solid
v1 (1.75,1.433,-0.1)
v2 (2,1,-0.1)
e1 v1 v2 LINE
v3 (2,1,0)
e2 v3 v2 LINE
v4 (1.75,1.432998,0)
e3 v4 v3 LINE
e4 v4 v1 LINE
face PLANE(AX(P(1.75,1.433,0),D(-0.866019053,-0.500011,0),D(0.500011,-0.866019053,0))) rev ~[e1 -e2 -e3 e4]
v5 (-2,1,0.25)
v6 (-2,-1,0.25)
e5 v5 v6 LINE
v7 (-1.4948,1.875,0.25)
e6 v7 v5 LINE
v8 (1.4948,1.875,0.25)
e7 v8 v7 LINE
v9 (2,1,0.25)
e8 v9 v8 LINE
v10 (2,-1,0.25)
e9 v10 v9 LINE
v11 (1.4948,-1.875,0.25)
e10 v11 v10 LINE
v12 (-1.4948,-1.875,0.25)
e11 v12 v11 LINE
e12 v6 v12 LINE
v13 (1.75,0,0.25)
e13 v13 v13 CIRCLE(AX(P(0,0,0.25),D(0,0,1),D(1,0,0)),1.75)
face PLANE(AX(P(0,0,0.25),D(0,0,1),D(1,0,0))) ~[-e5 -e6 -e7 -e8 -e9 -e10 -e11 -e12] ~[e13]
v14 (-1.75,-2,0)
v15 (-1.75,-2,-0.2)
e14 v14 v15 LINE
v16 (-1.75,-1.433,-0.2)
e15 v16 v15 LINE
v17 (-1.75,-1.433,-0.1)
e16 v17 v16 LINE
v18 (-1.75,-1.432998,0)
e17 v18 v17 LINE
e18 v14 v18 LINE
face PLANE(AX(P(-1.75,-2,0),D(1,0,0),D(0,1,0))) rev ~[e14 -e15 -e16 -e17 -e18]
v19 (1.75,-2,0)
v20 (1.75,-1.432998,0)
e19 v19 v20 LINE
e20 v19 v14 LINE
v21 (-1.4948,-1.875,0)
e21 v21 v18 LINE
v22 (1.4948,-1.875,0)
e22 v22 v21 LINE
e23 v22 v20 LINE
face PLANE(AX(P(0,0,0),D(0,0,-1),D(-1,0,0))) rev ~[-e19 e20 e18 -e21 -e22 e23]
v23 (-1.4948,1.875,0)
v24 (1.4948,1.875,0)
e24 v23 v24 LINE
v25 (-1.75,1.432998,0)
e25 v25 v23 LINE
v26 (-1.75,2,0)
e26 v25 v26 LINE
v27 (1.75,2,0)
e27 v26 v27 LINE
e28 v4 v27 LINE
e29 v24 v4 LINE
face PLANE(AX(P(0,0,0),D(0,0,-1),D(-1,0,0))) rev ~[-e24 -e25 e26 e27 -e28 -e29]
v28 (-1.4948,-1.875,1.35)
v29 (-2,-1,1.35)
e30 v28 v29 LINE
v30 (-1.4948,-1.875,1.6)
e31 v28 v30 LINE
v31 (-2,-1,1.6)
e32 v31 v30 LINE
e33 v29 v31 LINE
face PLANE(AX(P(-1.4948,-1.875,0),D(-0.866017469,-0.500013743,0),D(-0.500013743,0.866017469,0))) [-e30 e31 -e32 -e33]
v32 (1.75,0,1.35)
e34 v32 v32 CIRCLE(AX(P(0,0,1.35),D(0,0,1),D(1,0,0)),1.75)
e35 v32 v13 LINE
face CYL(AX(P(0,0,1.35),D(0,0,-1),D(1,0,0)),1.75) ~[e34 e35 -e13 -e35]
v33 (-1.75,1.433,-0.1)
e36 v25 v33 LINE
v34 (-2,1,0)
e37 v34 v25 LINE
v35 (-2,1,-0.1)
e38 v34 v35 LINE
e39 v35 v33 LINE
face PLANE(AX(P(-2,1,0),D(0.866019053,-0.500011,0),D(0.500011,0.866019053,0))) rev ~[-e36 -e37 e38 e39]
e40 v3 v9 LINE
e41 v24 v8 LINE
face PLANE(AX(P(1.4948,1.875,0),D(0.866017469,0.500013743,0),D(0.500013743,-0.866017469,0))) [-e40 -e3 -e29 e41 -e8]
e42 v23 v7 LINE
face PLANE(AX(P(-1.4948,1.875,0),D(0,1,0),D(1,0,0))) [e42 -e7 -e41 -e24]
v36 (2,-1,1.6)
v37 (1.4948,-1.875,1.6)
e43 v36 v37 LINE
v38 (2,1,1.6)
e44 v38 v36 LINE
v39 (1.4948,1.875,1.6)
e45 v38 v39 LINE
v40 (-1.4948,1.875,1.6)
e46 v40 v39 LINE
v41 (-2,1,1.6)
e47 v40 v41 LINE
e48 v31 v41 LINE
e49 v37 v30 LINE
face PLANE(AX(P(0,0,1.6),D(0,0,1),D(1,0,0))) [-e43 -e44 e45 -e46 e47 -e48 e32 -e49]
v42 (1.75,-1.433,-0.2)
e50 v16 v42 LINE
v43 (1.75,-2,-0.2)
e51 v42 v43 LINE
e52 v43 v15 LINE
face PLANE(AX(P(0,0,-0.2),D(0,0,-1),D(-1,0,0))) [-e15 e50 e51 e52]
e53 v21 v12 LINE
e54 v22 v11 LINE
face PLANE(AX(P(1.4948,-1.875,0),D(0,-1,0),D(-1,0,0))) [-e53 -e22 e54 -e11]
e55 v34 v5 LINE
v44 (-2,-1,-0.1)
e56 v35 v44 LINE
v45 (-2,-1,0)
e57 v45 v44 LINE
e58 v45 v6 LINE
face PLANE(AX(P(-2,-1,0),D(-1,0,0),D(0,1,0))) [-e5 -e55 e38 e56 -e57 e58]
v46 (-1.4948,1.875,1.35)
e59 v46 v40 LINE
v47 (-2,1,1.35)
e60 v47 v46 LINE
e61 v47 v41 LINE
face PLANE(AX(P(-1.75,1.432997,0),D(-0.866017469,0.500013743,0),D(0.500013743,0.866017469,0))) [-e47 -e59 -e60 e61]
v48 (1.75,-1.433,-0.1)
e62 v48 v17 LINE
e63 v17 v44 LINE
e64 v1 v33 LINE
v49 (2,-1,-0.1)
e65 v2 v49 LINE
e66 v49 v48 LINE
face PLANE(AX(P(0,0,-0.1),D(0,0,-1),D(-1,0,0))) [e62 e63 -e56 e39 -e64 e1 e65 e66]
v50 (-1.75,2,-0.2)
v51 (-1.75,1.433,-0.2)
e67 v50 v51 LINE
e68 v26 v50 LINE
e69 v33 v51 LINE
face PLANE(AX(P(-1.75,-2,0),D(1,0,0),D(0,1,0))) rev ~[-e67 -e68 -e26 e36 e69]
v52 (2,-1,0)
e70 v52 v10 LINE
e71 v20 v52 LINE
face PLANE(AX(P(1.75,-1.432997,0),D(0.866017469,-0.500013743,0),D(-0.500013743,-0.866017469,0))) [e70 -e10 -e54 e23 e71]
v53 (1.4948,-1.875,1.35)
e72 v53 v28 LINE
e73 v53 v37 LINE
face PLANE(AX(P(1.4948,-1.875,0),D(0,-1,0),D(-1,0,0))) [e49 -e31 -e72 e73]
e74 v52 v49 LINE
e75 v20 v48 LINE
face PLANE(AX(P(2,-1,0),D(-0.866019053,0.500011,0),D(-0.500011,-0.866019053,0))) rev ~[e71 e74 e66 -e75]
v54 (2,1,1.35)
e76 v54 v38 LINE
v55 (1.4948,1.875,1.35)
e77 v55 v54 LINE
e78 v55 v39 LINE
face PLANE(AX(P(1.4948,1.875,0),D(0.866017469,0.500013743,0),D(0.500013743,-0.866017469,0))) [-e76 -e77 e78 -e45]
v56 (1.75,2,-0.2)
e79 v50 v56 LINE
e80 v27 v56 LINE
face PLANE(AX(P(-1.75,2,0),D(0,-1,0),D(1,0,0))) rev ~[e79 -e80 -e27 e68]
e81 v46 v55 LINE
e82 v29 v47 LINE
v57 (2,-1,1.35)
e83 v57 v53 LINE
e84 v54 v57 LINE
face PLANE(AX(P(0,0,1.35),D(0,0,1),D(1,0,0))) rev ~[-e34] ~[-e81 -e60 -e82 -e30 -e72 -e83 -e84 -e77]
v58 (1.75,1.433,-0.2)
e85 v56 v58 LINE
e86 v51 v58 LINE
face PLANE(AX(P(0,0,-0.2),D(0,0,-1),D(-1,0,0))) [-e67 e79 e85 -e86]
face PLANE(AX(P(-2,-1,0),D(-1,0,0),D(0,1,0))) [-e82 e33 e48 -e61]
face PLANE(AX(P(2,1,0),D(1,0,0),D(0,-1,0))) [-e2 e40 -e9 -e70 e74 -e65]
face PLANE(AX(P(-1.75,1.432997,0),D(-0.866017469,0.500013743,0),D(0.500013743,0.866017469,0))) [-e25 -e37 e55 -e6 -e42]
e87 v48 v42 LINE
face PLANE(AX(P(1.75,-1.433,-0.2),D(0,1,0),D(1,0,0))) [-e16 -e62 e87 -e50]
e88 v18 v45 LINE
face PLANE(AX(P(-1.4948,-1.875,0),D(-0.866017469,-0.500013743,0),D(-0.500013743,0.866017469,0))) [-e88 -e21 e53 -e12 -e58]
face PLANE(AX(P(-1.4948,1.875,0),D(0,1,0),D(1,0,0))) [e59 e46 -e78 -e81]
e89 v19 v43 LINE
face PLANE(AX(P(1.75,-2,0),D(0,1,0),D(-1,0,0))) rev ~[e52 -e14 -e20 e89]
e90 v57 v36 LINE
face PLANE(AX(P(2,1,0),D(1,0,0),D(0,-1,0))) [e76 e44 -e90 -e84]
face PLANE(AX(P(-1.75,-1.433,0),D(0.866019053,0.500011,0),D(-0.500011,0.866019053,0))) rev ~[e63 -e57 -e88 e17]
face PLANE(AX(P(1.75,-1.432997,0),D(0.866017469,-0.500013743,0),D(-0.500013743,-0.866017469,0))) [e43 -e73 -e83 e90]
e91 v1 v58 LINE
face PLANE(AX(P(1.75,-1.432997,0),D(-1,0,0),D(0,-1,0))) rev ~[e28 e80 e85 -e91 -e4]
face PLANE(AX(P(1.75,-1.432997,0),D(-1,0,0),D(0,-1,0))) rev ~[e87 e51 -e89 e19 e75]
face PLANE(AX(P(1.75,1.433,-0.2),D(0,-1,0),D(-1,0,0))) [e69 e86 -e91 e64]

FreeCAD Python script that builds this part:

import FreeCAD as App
import Part
import Sketcher

V = App.Vector
Q = App.Units.Quantity

doc = App.newDocument("Part")
body = doc.addObject("PartDesign::Body", "Body")

sketch1 = doc.addObject("Sketcher::SketchObject", "Sketch")
body.addObject(sketch1)
sketch1.AttachmentSupport = (doc.XY_Plane, [""])
sketch1.MapMode = "FlatFace"
sketch1.addGeometry(Part.LineSegment(V(1.4948, -1.875, 0), V(2, -1, 0)), False)
sketch1.addGeometry(Part.LineSegment(V(2, -1, 0), V(2, 1, 0)), False)
sketch1.addGeometry(Part.LineSegment(V(2, 1, 0), V(1.4948, 1.875, 0)), False)
sketch1.addGeometry(Part.LineSegment(V(1.4948, 1.875, 0), V(-1.4948, 1.875, 0)), False)
sketch1.addGeometry(Part.LineSegment(V(-1.4948, 1.875, 0), V(-2, 1, 0)), False)
sketch1.addGeometry(Part.LineSegment(V(-2, 1, 0), V(-2, -1, 0)), False)
sketch1.addGeometry(Part.LineSegment(V(-2, -1, 0), V(-1.4948, -1.875, 0)), False)
sketch1.addGeometry(Part.LineSegment(V(-1.4948, -1.875, 0), V(1.4948, -1.875, 0)), False)
sketch1.addConstraint(Sketcher.Constraint("Coincident", 0, 2, 1, 1))
sketch1.addConstraint(Sketcher.Constraint("Coincident", 1, 2, 2, 1))
sketch1.addConstraint(Sketcher.Constraint("Coincident", 2, 2, 3, 1))
sketch1.addConstraint(Sketcher.Constraint("Coincident", 3, 2, 4, 1))
sketch1.addConstraint(Sketcher.Constraint("Coincident", 4, 2, 5, 1))
sketch1.addConstraint(Sketcher.Constraint("Coincident", 5, 2, 6, 1))
sketch1.addConstraint(Sketcher.Constraint("Coincident", 6, 2, 7, 1))
sketch1.addConstraint(Sketcher.Constraint("Coincident", 7, 2, 0, 1))
sketch1.addConstraint(Sketcher.Constraint("Vertical", 1))
sketch1.addConstraint(Sketcher.Constraint("Horizontal", 3))
sketch1.addConstraint(Sketcher.Constraint("Vertical", 5))
sketch1.addConstraint(Sketcher.Constraint("Horizontal", 7))
sketch1.addConstraint(Sketcher.Constraint("Symmetric", 0, 2, 4, 2, -1, 1))
sketch1.addConstraint(Sketcher.Constraint("Symmetric", 2, 2, 6, 2, -1, 1))
sketch1.addConstraint(Sketcher.Constraint("Parallel", 0, 4))
sketch1.addConstraint(Sketcher.Constraint("Parallel", 2, 6))
sketch1.addConstraint(Sketcher.Constraint("Horizontal", 1, 2, 4, 2))
sketch1.addConstraint(Sketcher.Constraint("Vertical", 3, 2, 6, 2))
sketch1.addConstraint(Sketcher.Constraint("DistanceY", 1, 1, 1, 2, 2.0))
sketch1.addConstraint(Sketcher.Constraint("DistanceX", -1, 1, 0, 2, 2.0))
sketch1.addConstraint(Sketcher.Constraint("Angle", 0, Q("59.999 deg")))
sketch1.addConstraint(Sketcher.Constraint("DistanceY", 6, 2, 3, 2, 3.75))
pad1 = doc.addObject("PartDesign::Pad", "Pad")
body.addObject(pad1)
pad1.Profile = sketch1
pad1.Length = 1.6

sketch2 = doc.addObject("Sketcher::SketchObject", "Sketch001")
body.addObject(sketch2)
sketch2.AttachmentSupport = (doc.XY_Plane, [""])
sketch2.MapMode = "FlatFace"
sketch2.addGeometry(Part.LineSegment(V(-1.75, -2, 0), V(-1.75, 2, 0)), False)
sketch2.addGeometry(Part.LineSegment(V(-1.75, 2, 0), V(1.75, 2, 0)), False)
sketch2.addGeometry(Part.LineSegment(V(1.75, 2, 0), V(1.75, -2, 0)), False)
sketch2.addGeometry(Part.LineSegment(V(1.75, -2, 0), V(-1.75, -2, 0)), False)
sketch2.addConstraint(Sketcher.Constraint("Coincident", 0, 2, 1, 1))
sketch2.addConstraint(Sketcher.Constraint("Coincident", 1, 2, 2, 1))
sketch2.addConstraint(Sketcher.Constraint("Coincident", 2, 2, 3, 1))
sketch2.addConstraint(Sketcher.Constraint("Coincident", 3, 2, 0, 1))
sketch2.addConstraint(Sketcher.Constraint("Vertical", 0))
sketch2.addConstraint(Sketcher.Constraint("Horizontal", 1))
sketch2.addConstraint(Sketcher.Constraint("Vertical", 2))
sketch2.addConstraint(Sketcher.Constraint("Horizontal", 3))
sketch2.addConstraint(Sketcher.Constraint("Symmetric", 0, 2, 2, 2, -1, 1))
sketch2.addConstraint(Sketcher.Constraint("DistanceY", 0, 1, 0, 2, 4.0))
sketch2.addConstraint(Sketcher.Constraint("DistanceX", 1, 1, 1, 2, 3.5))
pad2 = doc.addObject("PartDesign::Pad", "Pad001")
body.addObject(pad2)
pad2.Profile = sketch2
pad2.Length = 0.2
pad2.Reversed = True

sketch3 = doc.addObject("Sketcher::SketchObject", "Sketch002")
body.addObject(sketch3)
sketch3.AttachmentSupport = (doc.XY_Plane, [""])
sketch3.MapMode = "FlatFace"
sketch3.addGeometry(Part.LineSegment(V(2, -1, 0), V(1.75, -1.433, 0)), False)
sketch3.addGeometry(Part.LineSegment(V(1.75, -1.433, 0), V(1.75, 1.433, 0)), False)
sketch3.addGeometry(Part.LineSegment(V(1.75, 1.433, 0), V(2, 1, 0)), False)
sketch3.addGeometry(Part.LineSegment(V(2, 1, 0), V(2, -1, 0)), False)
sketch3.addGeometry(Part.LineSegment(V(-2, 1, 0), V(-1.75, 1.433, 0)), False)
sketch3.addGeometry(Part.LineSegment(V(-1.75, 1.433, 0), V(-1.75, -1.433, 0)), False)
sketch3.addGeometry(Part.LineSegment(V(-1.75, -1.433, 0), V(-2, -1, 0)), False)
sketch3.addGeometry(Part.LineSegment(V(-2, -1, 0), V(-2, 1, 0)), False)
sketch3.addConstraint(Sketcher.Constraint("Coincident", 0, 2, 1, 1))
sketch3.addConstraint(Sketcher.Constraint("Coincident", 1, 2, 2, 1))
sketch3.addConstraint(Sketcher.Constraint("Coincident", 2, 2, 3, 1))
sketch3.addConstraint(Sketcher.Constraint("Coincident", 3, 2, 0, 1))
sketch3.addConstraint(Sketcher.Constraint("Coincident", 4, 2, 5, 1))
sketch3.addConstraint(Sketcher.Constraint("Coincident", 5, 2, 6, 1))
sketch3.addConstraint(Sketcher.Constraint("Coincident", 6, 2, 7, 1))
sketch3.addConstraint(Sketcher.Constraint("Coincident", 7, 2, 4, 1))
sketch3.addConstraint(Sketcher.Constraint("Vertical", 1))
sketch3.addConstraint(Sketcher.Constraint("Vertical", 3))
sketch3.addConstraint(Sketcher.Constraint("Vertical", 5))
sketch3.addConstraint(Sketcher.Constraint("Vertical", 7))
sketch3.addConstraint(Sketcher.Constraint("Symmetric", 0, 2, 4, 2, -1, 1))
sketch3.addConstraint(Sketcher.Constraint("Symmetric", 2, 2, 6, 2, -1, 1))
sketch3.addConstraint(Sketcher.Constraint("Parallel", 0, 4))
sketch3.addConstraint(Sketcher.Constraint("Parallel", 2, 6))
sketch3.addConstraint(Sketcher.Constraint("Horizontal", 1, 2, 4, 2))
sketch3.addConstraint(Sketcher.Constraint("Horizontal", 3, 2, 6, 2))
sketch3.addConstraint(Sketcher.Constraint("DistanceY", 3, 2, 3, 1, 2.0))
sketch3.addConstraint(Sketcher.Constraint("Angle", 0, Q("-120.0007 deg")))
sketch3.addConstraint(Sketcher.Constraint("DistanceX", -1, 1, 2, 2, 2.0))
sketch3.addConstraint(Sketcher.Constraint("Distance", 0, 0.5))
pad3 = doc.addObject("PartDesign::Pad", "Pad002")
body.addObject(pad3)
pad3.Profile = sketch3
pad3.Length = 0.2
pad3.Reversed = True

sketch4 = doc.addObject("Sketcher::SketchObject", "Sketch003")
body.addObject(sketch4)
sketch4.AttachmentSupport = (doc.XZ_Plane, [""])
sketch4.MapMode = "FlatFace"
sketch4.addGeometry(Part.LineSegment(V(1.75, 1.35, 0), V(3.75, 1.35, 0)), False)
sketch4.addGeometry(Part.LineSegment(V(3.75, 1.35, 0), V(3.75, 0.25, 0)), False)
sketch4.addGeometry(Part.LineSegment(V(3.75, 0.25, 0), V(1.75, 0.25, 0)), False)
sketch4.addGeometry(Part.LineSegment(V(1.75, 0.25, 0), V(1.75, 1.35, 0)), False)
sketch4.addConstraint(Sketcher.Constraint("Coincident", 0, 2, 1, 1))
sketch4.addConstraint(Sketcher.Constraint("Coincident", 1, 2, 2, 1))
sketch4.addConstraint(Sketcher.Constraint("Coincident", 2, 2, 3, 1))
sketch4.addConstraint(Sketcher.Constraint("Coincident", 3, 2, 0, 1))
sketch4.addConstraint(Sketcher.Constraint("Horizontal", 0))
sketch4.addConstraint(Sketcher.Constraint("Vertical", 1))
sketch4.addConstraint(Sketcher.Constraint("Horizontal", 2))
sketch4.addConstraint(Sketcher.Constraint("Vertical", 3))
sketch4.addConstraint(Sketcher.Constraint("DistanceX", 0, 1, 0, 2, 2.0))
sketch4.addConstraint(Sketcher.Constraint("DistanceY", -1, 1, 1, 2, 0.25))
sketch4.addConstraint(Sketcher.Constraint("DistanceY", 1, 2, 1, 1, 1.1))
sketch4.addConstraint(Sketcher.Constraint("DistanceX", -1, 1, 0, 2, 3.75))
groove = doc.addObject("PartDesign::Groove", "Groove")
body.addObject(groove)
groove.Profile = sketch4
groove.ReferenceAxis = (sketch4, ["V_Axis"])
groove.Angle = 360

sketch5 = doc.addObject("Sketcher::SketchObject", "Sketch004")
body.addObject(sketch5)
sketch5.AttachmentSupport = (doc.XY_Plane, [""])
sketch5.MapMode = "FlatFace"
sketch5.AttachmentOffset = App.Placement(V(0, 0, -0.2), App.Rotation())
sketch5.addGeometry(Part.LineSegment(V(2, -1.433, 0), V(-2, -1.433, 0)), False)
sketch5.addGeometry(Part.LineSegment(V(-2, -1.433, 0), V(-2, 1.433, 0)), False)
sketch5.addGeometry(Part.LineSegment(V(-2, 1.433, 0), V(2, 1.433, 0)), False)
sketch5.addGeometry(Part.LineSegment(V(2, 1.433, 0), V(2, -1.433, 0)), False)
sketch5.addConstraint(Sketcher.Constraint("Coincident", 0, 2, 1, 1))
sketch5.addConstraint(Sketcher.Constraint("Coincident", 1, 2, 2, 1))
sketch5.addConstraint(Sketcher.Constraint("Coincident", 2, 2, 3, 1))
sketch5.addConstraint(Sketcher.Constraint("Coincident", 3, 2, 0, 1))
sketch5.addConstraint(Sketcher.Constraint("Horizontal", 0))
sketch5.addConstraint(Sketcher.Constraint("Vertical", 1))
sketch5.addConstraint(Sketcher.Constraint("Horizontal", 2))
sketch5.addConstraint(Sketcher.Constraint("Vertical", 3))
sketch5.addConstraint(Sketcher.Constraint("Symmetric", 0, 2, 2, 2, -1, 1))
sketch5.addConstraint(Sketcher.Constraint("DistanceX", 0, 2, 0, 1, 4.0))
sketch5.addConstraint(Sketcher.Constraint("DistanceY", 1, 1, 1, 2, 2.866))
pocket1 = doc.addObject("PartDesign::Pocket", "Pocket")
body.addObject(pocket1)
pocket1.Profile = sketch5
pocket1.Length = 0.1
pocket1.Reversed = True

doc.recompute()
